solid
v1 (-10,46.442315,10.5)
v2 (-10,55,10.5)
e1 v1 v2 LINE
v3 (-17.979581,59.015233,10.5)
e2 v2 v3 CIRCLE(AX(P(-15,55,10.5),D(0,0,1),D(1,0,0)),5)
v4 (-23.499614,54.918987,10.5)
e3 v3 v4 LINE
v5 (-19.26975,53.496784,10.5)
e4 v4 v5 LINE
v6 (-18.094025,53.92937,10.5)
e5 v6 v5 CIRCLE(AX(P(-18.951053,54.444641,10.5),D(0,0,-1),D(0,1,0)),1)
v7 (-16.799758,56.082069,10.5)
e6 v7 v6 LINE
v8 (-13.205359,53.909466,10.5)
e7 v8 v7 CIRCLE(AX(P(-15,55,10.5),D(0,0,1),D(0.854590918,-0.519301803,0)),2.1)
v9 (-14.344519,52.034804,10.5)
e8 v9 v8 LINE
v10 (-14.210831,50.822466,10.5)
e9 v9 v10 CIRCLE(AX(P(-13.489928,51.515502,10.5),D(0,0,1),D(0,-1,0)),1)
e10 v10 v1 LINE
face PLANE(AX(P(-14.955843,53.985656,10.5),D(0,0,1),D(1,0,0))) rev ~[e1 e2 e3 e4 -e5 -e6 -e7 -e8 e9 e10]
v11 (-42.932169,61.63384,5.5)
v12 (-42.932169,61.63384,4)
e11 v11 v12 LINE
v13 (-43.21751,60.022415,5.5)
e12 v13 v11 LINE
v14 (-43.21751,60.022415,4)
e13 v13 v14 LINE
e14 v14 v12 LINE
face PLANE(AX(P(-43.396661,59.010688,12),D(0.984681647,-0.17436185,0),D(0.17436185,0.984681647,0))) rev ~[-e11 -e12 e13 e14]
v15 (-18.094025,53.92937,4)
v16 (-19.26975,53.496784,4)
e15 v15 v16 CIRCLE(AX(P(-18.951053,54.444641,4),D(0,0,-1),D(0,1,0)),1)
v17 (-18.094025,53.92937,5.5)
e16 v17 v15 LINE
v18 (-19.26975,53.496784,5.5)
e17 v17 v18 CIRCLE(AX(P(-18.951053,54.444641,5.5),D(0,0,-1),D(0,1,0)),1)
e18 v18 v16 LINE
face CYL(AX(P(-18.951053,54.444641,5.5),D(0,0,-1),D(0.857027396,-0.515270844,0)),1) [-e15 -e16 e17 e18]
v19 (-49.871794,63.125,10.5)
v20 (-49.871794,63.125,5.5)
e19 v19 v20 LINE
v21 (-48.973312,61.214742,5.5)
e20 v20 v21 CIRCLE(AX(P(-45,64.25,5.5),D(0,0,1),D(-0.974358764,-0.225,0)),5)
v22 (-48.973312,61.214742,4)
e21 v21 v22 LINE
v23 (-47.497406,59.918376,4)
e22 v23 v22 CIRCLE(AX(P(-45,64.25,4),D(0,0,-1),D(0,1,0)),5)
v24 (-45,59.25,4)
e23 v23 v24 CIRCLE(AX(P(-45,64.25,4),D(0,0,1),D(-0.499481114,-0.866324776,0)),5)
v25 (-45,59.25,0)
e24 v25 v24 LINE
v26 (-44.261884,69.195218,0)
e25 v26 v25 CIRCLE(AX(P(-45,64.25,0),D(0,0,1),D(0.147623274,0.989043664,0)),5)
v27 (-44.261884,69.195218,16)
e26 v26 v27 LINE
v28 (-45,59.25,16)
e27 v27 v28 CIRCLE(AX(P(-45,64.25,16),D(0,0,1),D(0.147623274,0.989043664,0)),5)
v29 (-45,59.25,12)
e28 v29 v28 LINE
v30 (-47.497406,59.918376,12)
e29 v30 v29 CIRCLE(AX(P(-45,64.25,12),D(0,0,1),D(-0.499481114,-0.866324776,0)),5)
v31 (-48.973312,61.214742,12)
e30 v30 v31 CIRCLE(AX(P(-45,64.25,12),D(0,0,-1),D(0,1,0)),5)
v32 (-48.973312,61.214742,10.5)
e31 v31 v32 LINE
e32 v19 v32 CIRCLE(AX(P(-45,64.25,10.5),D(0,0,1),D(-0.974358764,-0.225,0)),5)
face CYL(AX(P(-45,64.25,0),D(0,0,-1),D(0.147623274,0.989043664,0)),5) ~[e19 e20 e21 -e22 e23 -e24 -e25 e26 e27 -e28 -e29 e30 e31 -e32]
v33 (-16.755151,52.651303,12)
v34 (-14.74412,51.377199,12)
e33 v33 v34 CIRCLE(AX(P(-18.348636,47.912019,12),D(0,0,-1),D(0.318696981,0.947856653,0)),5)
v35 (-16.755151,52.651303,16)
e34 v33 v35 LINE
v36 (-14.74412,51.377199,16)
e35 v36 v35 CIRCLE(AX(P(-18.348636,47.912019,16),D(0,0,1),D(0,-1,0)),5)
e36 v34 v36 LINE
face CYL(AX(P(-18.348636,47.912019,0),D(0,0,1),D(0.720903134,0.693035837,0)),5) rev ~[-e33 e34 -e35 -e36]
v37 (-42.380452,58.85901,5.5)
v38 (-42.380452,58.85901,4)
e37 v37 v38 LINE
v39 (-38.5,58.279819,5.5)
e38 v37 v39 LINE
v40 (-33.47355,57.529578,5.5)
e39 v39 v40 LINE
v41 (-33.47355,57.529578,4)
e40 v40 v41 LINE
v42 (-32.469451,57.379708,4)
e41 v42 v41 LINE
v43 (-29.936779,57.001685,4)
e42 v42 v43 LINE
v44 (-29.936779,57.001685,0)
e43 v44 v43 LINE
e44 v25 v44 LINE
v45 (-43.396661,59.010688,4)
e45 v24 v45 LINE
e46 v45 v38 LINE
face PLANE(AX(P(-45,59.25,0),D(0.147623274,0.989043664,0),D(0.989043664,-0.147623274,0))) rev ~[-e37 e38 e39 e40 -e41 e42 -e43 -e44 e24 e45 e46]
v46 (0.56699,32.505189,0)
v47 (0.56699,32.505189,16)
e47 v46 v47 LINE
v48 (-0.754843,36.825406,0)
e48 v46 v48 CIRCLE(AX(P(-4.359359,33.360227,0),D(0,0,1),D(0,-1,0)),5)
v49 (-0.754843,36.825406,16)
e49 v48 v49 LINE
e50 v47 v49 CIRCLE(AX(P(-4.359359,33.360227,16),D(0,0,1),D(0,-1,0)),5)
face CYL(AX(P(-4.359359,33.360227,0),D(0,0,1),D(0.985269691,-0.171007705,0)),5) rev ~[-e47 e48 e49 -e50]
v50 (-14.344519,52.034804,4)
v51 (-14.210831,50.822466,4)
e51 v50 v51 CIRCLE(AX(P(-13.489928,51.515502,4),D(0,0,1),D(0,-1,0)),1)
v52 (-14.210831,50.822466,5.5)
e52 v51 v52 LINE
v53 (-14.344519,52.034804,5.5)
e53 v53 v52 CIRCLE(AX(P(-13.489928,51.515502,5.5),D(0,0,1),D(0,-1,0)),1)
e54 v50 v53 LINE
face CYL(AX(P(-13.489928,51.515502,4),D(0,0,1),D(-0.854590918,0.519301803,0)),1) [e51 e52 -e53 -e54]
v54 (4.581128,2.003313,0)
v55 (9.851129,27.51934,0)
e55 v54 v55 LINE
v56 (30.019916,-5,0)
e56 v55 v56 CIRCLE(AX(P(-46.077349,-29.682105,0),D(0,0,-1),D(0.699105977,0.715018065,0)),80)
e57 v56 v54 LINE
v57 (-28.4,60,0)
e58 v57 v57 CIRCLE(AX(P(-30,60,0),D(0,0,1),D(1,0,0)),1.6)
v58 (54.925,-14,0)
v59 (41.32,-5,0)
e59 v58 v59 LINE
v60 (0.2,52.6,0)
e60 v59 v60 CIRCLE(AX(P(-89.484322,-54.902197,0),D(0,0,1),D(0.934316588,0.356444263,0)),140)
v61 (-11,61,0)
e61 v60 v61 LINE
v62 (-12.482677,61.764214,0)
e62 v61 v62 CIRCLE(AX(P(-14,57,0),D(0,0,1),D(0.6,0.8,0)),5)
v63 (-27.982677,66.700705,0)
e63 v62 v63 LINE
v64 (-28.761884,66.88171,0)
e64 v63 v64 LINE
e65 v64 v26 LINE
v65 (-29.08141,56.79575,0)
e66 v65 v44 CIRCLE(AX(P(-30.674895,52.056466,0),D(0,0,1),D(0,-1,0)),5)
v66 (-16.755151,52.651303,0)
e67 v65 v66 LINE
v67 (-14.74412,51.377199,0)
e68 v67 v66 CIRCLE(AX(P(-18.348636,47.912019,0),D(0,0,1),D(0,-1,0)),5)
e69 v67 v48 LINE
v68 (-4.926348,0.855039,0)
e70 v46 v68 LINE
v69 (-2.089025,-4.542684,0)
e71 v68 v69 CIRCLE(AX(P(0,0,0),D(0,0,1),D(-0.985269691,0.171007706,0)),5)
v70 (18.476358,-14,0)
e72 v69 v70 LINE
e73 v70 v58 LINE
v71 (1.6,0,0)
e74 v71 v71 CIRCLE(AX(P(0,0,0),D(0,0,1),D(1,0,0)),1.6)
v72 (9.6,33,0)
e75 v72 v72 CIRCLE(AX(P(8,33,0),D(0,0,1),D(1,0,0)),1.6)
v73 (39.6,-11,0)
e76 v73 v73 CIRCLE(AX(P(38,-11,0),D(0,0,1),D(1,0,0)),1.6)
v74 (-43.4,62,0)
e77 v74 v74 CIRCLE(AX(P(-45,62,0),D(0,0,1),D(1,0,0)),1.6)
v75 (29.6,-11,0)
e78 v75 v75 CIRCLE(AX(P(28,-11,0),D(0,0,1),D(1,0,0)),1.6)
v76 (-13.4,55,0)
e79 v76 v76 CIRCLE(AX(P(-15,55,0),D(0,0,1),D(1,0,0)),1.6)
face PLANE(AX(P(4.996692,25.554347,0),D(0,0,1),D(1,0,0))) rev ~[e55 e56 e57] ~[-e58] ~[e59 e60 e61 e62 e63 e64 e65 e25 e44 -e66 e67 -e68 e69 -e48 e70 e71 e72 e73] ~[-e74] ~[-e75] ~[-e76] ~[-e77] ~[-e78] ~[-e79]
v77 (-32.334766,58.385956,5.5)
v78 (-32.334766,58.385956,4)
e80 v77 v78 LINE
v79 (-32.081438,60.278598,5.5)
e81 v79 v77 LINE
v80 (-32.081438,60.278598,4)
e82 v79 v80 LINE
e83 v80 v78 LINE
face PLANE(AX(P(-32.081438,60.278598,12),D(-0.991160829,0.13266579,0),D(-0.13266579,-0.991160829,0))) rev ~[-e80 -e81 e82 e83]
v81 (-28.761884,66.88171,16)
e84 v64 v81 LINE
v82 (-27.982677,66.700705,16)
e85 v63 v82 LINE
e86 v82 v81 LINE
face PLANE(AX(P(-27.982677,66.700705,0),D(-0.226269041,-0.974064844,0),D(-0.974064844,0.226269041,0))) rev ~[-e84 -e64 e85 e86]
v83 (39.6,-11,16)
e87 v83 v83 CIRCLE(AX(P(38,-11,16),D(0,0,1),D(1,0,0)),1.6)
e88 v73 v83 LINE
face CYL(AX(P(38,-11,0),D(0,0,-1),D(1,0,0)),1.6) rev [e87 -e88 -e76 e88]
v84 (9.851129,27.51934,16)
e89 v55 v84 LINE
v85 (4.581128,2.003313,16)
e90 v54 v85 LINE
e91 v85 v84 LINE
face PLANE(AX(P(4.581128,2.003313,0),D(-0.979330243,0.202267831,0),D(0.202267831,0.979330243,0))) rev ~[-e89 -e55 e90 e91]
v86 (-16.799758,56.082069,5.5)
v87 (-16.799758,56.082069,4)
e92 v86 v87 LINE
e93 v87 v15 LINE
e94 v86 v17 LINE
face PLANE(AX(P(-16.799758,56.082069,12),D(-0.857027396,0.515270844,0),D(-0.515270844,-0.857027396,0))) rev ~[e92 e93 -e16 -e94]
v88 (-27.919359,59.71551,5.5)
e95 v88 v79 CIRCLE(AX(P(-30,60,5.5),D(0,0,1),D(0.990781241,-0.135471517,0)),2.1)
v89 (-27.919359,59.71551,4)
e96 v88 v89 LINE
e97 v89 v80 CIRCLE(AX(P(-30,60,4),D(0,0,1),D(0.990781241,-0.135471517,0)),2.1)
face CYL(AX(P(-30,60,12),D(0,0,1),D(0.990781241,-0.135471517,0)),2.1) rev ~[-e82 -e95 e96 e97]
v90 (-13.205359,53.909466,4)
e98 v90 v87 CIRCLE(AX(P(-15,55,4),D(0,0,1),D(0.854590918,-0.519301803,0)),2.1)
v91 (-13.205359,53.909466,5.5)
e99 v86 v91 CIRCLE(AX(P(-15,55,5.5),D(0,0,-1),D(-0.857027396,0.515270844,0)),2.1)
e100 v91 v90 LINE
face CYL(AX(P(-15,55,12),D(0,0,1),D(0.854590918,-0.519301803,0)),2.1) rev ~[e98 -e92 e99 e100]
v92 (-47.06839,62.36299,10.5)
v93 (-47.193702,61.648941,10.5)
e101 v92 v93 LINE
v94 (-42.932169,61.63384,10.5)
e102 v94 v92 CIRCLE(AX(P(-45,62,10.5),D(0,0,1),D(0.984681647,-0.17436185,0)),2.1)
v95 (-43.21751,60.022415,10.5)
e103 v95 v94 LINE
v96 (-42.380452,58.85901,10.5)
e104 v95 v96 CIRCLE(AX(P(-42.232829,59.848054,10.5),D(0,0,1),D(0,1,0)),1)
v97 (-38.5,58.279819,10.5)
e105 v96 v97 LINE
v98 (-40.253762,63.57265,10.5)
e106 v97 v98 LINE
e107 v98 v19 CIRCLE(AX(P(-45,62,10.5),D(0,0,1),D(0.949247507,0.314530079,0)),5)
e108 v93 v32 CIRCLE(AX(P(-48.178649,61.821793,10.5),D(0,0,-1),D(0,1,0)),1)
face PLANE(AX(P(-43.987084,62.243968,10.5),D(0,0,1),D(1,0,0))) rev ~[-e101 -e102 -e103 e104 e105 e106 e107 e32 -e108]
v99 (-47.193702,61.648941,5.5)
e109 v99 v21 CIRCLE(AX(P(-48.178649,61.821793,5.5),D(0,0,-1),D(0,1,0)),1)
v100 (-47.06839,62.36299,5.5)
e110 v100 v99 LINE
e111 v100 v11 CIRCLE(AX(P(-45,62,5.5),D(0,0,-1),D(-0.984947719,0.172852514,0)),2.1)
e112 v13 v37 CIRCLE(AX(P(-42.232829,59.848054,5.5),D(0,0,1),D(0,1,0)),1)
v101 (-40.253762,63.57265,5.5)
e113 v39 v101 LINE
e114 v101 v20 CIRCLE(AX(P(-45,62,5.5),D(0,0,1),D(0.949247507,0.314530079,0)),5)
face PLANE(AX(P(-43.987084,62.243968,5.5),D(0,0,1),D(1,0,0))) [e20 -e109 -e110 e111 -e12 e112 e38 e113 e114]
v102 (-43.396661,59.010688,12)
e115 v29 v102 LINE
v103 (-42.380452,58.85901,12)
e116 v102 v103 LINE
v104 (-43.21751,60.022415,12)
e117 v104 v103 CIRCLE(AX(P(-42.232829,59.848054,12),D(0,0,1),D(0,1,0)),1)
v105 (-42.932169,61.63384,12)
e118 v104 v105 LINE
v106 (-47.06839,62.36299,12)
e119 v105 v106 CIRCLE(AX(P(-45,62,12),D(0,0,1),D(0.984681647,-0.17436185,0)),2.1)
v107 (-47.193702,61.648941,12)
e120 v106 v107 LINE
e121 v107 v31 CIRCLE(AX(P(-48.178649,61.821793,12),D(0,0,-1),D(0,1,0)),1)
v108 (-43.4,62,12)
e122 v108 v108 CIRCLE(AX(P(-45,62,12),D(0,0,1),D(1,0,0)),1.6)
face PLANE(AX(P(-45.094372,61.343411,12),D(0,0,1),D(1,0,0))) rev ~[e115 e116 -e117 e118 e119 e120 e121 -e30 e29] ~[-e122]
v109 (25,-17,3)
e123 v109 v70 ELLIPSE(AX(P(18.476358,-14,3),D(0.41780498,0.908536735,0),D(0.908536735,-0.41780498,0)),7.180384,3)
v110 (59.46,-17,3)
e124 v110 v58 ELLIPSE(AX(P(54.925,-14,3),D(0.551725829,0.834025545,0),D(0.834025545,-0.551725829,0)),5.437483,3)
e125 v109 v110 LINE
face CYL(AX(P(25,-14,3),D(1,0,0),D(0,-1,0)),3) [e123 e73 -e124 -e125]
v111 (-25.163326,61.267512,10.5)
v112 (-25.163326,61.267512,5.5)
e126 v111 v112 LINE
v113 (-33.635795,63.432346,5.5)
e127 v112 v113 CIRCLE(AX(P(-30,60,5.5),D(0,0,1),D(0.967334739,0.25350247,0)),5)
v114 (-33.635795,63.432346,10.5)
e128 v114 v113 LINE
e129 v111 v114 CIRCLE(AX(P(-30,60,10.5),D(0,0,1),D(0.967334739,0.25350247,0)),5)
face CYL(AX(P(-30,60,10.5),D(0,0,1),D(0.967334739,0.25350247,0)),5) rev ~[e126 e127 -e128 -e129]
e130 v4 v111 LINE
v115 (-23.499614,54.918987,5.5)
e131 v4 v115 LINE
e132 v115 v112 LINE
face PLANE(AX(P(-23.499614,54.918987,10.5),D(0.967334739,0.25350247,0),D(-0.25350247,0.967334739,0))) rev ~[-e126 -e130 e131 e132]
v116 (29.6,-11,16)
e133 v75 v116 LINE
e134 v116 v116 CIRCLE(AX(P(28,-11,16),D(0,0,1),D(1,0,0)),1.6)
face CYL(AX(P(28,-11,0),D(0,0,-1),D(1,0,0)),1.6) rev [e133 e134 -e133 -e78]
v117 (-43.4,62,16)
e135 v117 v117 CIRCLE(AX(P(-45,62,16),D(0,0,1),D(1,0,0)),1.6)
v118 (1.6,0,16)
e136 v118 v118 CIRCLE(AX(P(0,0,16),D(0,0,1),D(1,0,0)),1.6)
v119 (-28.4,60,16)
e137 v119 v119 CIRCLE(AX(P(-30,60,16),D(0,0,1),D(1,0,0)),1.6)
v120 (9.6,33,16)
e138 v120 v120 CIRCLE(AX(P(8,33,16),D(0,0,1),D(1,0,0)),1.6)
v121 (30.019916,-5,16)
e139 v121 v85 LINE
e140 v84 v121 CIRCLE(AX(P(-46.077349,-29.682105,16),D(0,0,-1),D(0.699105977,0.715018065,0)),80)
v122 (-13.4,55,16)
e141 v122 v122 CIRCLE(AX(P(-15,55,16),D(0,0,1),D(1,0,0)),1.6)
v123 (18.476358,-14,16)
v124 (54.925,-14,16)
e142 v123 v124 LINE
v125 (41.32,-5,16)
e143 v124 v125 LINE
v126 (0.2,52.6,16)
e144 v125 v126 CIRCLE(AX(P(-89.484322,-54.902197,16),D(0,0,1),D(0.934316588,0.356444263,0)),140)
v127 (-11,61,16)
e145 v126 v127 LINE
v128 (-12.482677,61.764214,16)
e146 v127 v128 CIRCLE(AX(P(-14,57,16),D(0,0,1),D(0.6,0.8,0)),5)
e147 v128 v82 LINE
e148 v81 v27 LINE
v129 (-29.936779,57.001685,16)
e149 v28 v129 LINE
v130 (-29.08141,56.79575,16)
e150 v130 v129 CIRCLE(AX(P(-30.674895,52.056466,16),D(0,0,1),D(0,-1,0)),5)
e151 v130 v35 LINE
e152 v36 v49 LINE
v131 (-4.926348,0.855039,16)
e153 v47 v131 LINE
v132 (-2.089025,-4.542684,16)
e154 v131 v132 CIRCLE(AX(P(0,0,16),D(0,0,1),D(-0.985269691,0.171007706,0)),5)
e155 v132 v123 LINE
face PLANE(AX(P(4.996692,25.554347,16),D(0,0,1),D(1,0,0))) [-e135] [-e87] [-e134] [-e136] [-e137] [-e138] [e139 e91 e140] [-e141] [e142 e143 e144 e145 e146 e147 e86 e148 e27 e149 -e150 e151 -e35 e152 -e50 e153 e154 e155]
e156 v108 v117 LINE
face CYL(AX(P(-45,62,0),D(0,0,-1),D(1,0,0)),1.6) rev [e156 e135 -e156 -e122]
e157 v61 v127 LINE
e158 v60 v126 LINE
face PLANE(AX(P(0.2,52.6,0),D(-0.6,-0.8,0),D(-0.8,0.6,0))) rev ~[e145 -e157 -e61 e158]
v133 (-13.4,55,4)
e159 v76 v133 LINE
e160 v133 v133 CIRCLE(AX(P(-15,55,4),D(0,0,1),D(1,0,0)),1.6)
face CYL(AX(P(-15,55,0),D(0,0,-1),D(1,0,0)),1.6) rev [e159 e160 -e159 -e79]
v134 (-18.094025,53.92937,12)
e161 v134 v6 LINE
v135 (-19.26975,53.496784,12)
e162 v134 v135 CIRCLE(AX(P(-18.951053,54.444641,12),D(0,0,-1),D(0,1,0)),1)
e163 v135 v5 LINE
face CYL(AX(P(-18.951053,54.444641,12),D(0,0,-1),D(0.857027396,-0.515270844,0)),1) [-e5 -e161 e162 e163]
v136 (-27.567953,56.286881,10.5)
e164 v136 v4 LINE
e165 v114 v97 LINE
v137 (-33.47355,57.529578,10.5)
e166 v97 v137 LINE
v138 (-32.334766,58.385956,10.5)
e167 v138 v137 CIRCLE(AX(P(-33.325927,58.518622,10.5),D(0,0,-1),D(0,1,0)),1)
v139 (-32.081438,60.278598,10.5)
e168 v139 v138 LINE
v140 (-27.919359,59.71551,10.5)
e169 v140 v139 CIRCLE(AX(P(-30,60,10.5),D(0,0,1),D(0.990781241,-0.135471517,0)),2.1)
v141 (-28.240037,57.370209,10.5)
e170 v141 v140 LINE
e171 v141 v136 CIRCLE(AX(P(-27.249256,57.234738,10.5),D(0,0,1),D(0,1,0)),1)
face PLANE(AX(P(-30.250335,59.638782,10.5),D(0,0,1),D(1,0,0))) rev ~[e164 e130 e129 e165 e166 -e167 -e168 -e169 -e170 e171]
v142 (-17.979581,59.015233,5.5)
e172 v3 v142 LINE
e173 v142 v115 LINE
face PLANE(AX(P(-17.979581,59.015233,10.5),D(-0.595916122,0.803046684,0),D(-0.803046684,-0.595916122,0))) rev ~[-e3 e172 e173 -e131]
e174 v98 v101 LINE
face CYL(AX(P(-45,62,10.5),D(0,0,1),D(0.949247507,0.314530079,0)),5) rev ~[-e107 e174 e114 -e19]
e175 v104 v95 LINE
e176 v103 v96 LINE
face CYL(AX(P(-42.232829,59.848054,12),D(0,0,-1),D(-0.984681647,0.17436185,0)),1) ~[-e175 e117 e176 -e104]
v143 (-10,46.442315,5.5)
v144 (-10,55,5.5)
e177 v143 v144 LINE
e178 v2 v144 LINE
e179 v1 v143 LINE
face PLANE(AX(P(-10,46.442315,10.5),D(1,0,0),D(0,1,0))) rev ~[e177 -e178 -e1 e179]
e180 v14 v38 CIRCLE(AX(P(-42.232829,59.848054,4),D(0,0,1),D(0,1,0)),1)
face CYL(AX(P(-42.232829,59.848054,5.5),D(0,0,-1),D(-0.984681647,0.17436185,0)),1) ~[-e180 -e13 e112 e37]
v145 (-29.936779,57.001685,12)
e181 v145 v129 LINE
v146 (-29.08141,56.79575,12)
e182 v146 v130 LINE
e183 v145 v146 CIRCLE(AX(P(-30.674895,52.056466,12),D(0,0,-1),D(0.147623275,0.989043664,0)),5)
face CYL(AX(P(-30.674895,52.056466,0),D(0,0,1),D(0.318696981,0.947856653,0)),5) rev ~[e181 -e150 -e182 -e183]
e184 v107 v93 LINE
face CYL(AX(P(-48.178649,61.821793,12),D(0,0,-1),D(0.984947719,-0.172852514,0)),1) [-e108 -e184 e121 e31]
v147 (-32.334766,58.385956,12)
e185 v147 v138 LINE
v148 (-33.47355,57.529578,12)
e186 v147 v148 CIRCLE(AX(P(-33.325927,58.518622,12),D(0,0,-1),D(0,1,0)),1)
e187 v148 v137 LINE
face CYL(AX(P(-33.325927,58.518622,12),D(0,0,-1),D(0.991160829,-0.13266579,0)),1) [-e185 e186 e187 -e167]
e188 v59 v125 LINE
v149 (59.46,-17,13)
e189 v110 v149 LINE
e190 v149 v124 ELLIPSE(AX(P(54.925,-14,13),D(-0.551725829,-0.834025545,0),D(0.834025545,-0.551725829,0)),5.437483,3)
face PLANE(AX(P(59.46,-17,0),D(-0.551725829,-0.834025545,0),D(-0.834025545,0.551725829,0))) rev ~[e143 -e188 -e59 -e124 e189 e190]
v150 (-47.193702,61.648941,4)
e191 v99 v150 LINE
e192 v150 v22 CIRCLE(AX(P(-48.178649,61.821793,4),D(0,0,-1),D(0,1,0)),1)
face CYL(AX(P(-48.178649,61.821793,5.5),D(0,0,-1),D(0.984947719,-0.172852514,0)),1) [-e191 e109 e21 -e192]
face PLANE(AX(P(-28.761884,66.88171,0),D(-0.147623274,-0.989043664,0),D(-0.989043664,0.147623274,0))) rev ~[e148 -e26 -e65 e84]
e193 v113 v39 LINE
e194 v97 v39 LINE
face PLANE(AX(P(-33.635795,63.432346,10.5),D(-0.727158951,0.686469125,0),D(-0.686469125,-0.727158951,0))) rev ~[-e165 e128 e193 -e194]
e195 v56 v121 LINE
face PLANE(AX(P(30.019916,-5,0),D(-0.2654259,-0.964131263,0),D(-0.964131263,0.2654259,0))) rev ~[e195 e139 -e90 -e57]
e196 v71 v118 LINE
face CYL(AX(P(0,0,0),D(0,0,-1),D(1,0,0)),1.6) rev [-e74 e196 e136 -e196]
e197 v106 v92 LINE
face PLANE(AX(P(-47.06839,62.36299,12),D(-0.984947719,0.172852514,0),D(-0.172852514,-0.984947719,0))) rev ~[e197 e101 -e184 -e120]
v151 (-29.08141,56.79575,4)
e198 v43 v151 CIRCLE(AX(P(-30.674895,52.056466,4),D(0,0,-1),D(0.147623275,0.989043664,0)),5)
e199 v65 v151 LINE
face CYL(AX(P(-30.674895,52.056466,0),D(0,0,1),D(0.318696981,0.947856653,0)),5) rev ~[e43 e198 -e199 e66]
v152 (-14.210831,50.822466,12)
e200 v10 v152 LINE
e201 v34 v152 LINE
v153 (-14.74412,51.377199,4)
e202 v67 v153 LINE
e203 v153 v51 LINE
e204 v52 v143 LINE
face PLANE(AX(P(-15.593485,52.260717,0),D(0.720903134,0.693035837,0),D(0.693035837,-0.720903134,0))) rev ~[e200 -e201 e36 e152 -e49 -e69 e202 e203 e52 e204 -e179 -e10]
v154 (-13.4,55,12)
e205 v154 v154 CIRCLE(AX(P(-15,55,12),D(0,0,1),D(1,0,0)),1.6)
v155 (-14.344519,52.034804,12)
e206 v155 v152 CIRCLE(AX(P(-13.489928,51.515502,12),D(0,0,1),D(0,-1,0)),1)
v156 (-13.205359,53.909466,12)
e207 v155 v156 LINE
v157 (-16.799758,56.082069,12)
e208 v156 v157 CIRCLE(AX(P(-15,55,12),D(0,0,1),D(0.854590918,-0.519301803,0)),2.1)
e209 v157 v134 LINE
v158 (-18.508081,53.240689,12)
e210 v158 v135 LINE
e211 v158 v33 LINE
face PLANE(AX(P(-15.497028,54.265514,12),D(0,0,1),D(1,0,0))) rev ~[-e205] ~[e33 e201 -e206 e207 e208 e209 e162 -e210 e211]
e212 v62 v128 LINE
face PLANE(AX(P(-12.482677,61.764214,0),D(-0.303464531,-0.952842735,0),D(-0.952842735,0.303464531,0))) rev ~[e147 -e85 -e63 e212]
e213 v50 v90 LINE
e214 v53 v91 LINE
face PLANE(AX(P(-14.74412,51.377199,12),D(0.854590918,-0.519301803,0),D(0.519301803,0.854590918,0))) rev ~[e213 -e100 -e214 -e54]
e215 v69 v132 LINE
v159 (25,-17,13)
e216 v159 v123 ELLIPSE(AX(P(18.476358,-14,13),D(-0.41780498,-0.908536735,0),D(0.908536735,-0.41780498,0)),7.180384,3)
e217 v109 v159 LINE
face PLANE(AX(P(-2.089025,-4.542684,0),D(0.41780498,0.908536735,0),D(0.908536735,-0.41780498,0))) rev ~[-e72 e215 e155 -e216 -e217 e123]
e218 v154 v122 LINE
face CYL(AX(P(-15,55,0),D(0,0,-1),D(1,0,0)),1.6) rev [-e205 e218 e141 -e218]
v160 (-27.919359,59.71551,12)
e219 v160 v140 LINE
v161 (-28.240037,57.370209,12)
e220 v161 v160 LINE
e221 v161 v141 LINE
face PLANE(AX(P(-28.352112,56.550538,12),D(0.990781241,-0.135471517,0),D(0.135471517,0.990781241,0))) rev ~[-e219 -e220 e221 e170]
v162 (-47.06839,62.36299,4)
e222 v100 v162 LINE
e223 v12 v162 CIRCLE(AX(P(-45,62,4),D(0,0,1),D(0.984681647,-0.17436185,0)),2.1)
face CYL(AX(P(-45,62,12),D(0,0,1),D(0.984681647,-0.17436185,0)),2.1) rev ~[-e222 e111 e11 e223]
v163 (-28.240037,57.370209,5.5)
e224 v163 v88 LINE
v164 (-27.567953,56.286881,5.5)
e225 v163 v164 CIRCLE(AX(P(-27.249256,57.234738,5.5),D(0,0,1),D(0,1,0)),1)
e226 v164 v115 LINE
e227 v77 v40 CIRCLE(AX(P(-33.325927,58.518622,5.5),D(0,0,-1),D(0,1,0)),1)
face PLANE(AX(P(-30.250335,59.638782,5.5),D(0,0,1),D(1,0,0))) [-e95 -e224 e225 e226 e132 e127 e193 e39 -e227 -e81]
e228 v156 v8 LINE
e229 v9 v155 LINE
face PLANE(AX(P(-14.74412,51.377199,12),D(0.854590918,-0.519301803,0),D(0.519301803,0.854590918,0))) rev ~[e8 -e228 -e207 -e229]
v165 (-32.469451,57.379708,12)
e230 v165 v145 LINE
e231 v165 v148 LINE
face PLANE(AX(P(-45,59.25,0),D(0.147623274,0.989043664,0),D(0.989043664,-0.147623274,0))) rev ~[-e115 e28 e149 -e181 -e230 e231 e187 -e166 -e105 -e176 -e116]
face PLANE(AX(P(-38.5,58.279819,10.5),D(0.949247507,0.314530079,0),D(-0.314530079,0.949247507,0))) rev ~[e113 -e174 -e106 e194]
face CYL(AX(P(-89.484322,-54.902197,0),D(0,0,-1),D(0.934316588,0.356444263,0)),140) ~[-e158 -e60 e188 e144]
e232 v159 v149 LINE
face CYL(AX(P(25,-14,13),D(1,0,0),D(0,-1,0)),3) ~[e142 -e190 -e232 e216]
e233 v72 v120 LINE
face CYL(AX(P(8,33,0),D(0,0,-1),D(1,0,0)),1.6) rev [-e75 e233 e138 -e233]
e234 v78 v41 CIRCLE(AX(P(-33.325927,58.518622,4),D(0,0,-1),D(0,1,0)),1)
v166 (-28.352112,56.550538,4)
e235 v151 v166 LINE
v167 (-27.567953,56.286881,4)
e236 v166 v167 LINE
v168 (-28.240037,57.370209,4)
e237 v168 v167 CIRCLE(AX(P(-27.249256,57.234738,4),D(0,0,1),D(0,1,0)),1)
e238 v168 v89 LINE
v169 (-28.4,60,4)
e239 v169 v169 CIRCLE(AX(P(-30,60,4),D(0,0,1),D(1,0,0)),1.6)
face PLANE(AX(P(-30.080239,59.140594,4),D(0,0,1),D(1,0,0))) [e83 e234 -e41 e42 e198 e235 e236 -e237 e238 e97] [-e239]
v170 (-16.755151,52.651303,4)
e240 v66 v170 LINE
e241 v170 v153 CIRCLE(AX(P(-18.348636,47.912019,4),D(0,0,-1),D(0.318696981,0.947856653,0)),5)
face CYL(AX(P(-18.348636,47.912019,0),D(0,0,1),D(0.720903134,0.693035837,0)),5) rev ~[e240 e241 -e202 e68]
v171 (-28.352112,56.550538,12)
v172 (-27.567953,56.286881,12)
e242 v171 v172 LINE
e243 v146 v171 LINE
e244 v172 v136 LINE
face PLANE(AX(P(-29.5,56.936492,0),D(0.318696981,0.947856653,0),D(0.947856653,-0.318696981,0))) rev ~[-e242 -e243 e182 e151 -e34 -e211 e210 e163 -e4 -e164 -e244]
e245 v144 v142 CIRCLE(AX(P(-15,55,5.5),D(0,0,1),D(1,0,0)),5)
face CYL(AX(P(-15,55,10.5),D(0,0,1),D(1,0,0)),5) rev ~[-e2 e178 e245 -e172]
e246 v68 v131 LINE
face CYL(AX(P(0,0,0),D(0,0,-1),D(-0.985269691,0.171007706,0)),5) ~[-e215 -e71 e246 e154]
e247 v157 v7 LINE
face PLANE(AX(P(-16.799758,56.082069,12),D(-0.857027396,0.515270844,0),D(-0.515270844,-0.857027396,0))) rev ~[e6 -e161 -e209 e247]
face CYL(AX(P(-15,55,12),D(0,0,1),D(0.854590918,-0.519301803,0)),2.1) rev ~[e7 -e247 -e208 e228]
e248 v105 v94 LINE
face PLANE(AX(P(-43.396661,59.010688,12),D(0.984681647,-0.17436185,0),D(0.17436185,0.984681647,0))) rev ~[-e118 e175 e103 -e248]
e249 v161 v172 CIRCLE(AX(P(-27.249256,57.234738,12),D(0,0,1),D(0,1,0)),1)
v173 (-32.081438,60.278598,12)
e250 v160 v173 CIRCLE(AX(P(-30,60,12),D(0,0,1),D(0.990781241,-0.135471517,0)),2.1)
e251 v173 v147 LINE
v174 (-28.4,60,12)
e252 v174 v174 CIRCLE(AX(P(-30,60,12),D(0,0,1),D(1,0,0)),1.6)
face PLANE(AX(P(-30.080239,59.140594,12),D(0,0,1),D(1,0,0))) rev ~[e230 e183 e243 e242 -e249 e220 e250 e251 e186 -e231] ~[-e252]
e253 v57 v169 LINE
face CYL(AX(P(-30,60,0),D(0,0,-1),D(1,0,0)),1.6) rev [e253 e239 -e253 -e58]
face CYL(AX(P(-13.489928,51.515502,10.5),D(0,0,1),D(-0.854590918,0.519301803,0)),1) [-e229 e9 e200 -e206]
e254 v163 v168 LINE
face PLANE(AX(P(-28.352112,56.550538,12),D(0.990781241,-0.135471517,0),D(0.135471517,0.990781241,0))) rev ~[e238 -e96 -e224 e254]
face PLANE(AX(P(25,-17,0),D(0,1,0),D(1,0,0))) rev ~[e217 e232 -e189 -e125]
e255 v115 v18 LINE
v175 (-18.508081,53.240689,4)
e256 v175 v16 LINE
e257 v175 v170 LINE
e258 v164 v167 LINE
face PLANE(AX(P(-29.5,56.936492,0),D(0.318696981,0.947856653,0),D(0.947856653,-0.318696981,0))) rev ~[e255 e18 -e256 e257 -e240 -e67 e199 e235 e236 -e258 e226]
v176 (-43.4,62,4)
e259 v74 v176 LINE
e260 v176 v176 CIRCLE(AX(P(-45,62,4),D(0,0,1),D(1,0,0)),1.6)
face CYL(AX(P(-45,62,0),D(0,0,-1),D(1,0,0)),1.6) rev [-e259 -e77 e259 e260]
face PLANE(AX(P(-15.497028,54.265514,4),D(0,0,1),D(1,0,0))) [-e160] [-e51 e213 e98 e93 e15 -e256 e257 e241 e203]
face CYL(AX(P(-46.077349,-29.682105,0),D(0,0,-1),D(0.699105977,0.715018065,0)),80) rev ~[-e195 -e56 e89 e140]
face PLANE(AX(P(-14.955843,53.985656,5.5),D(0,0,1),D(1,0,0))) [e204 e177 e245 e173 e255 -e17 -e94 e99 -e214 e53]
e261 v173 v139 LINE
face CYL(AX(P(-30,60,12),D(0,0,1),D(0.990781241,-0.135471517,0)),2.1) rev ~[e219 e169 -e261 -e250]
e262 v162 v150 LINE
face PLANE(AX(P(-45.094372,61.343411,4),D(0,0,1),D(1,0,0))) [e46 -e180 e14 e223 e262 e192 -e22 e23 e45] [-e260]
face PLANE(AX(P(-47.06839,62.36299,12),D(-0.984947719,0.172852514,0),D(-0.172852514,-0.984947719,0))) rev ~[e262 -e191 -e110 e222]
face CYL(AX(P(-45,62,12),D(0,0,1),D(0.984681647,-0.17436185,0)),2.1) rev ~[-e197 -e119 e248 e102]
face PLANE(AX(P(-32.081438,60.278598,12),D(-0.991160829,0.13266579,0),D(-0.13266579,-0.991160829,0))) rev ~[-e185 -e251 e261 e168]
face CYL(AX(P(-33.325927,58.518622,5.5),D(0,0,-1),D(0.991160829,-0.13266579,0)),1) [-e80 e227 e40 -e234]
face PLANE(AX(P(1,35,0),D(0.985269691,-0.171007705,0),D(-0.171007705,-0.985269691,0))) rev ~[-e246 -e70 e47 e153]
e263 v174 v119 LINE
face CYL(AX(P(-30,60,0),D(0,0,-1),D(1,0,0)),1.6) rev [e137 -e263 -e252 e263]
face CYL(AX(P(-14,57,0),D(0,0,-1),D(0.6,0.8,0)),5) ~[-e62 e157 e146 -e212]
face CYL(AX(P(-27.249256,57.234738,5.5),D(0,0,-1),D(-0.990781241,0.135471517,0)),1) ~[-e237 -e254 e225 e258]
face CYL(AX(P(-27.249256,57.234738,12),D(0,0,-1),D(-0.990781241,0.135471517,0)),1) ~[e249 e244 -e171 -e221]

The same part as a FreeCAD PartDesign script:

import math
import FreeCAD as App
import Part
import Sketcher


def edges_at(feature, points):
    """Names of the edges that pass closest to the given points."""
    edges = feature.Shape.Edges
    near = lambda p: min(range(len(edges)), key=lambda i: edges[i].distToShape(Part.Vertex(*p))[0])
    return sorted({f"Edge{near(p) + 1}" for p in points})

doc = App.newDocument("Part")
body = doc.addObject("PartDesign::Body", "Body")

# Sketch on XY plane
sketch1 = body.newObject("Sketcher::SketchObject", "Sketch")
sketch1.AttachmentSupport = (doc.getObject("XY_Plane"), [""])
sketch1.MapMode = "FlatFace"
sketch1.addGeometry(Part.LineSegment(App.Vector(59.5, -17, 0), App.Vector(41.3, -5, 0)), False)
sketch1.addGeometry(Part.ArcOfCircle(Part.Circle(App.Vector(-89.5, -54.9, 0), App.Vector(0, 0, 1), 140), math.radians(21), math.radians(50)), False)
sketch1.addGeometry(Part.LineSegment(App.Vector(0.2, 52.6, 0), App.Vector(-11, 61, 0)), False)
sketch1.addGeometry(Part.ArcOfCircle(Part.Circle(App.Vector(-14, 57, 0), App.Vector(0, 0, 1), 5), math.radians(53.13), math.radians(72.33)), False)
sketch1.addGeometry(Part.LineSegment(App.Vector(-12.5, 61.8, 0), App.Vector(-28, 66.7, 0)), False)
sketch1.addGeometry(Part.LineSegment(App.Vector(-28, 66.7, 0), App.Vector(-28.8, 66.9, 0)), False)
sketch1.addGeometry(Part.LineSegment(App.Vector(-28.8, 66.9, 0), App.Vector(-44.3, 69.2, 0)), False)
sketch1.addGeometry(Part.ArcOfCircle(Part.Circle(App.Vector(-45, 64.2, 0), App.Vector(0, 0, 1), 5), math.radians(82), math.radians(270)), False)
sketch1.addGeometry(Part.LineSegment(App.Vector(-45, 59.2, 0), App.Vector(-29.5, 56.9, 0)), False)
sketch1.addGeometry(Part.LineSegment(App.Vector(-29.5, 56.9, 0), App.Vector(-15.6, 52.3, 0)), False)
sketch1.addGeometry(Part.LineSegment(App.Vector(-15.6, 52.3, 0), App.Vector(1, 35, 0)), False)
sketch1.addGeometry(Part.LineSegment(App.Vector(1, 35, 0), App.Vector(-4.9, 0.9, 0)), False)
sketch1.addGeometry(Part.ArcOfCircle(Part.Circle(App.Vector(0, 0, 0), App.Vector(0, 0, 1), 5), math.radians(170), math.radians(245)), False)
sketch1.addGeometry(Part.LineSegment(App.Vector(-2.1, -4.5, 0), App.Vector(25, -17, 0)), False)
sketch1.addGeometry(Part.LineSegment(App.Vector(25, -17, 0), App.Vector(59.5, -17, 0)), False)
sketch1.addGeometry(Part.Circle(App.Vector(0, 0, 0), App.Vector(0, 0, 1), 1.6), False)
sketch1.addGeometry(Part.Circle(App.Vector(28, -11, 0), App.Vector(0, 0, 1), 1.6), False)
sketch1.addGeometry(Part.Circle(App.Vector(38, -11, 0), App.Vector(0, 0, 1), 1.6), False)
sketch1.addGeometry(Part.ArcOfCircle(Part.Circle(App.Vector(-46.1, -29.7, 0), App.Vector(0, 0, 1), 80), math.radians(18), math.radians(46)), False)
sketch1.addGeometry(Part.LineSegment(App.Vector(30, -5, 0), App.Vector(4.6, 2, 0)), False)
sketch1.addGeometry(Part.LineSegment(App.Vector(4.6, 2, 0), App.Vector(9.9, 27.5, 0)), False)
sketch1.addGeometry(Part.Circle(App.Vector(-45, 62, 0), App.Vector(0, 0, 1), 1.6), False)
sketch1.addGeometry(Part.Circle(App.Vector(-30, 60, 0), App.Vector(0, 0, 1), 1.6), False)
sketch1.addGeometry(Part.Circle(App.Vector(-15, 55, 0), App.Vector(0, 0, 1), 1.6), False)
sketch1.addGeometry(Part.Circle(App.Vector(8, 33, 0), App.Vector(0, 0, 1), 1.6), False)
sketch1.addConstraint(Sketcher.Constraint("Coincident", 0, 2, 1, 1))
sketch1.addConstraint(Sketcher.Constraint("Coincident", 1, 2, 2, 1))
sketch1.addConstraint(Sketcher.Constraint("Tangent", 2, 2, 3, 1))
sketch1.addConstraint(Sketcher.Constraint("Tangent", 3, 2, 4, 1))
sketch1.addConstraint(Sketcher.Constraint("Coincident", 4, 2, 5, 1))
sketch1.addConstraint(Sketcher.Constraint("Coincident", 5, 2, 6, 1))
sketch1.addConstraint(Sketcher.Constraint("Tangent", 6, 2, 7, 1))
sketch1.addConstraint(Sketcher.Constraint("Coincident", 7, 2, 8, 1))
sketch1.addConstraint(Sketcher.Constraint("Coincident", 8, 2, 9, 1))
sketch1.addConstraint(Sketcher.Constraint("Coincident", 9, 2, 10, 1))
sketch1.addConstraint(Sketcher.Constraint("Coincident", 10, 2, 11, 1))
sketch1.addConstraint(Sketcher.Constraint("Tangent", 11, 2, 12, 1))
sketch1.addConstraint(Sketcher.Constraint("Tangent", 12, 2, 13, 1))
sketch1.addConstraint(Sketcher.Constraint("Coincident", 13, 2, 14, 1))
sketch1.addConstraint(Sketcher.Constraint("Coincident", 14, 2, 0, 1))
sketch1.addConstraint(Sketcher.Constraint("Coincident", 18, 1, 19, 1))
sketch1.addConstraint(Sketcher.Constraint("Coincident", 19, 2, 20, 1))
sketch1.addConstraint(Sketcher.Constraint("Coincident", 20, 2, 18, 2))
sketch1.addConstraint(Sketcher.Constraint("Horizontal", 14))
sketch1.addConstraint(Sketcher.Constraint("Coincident", 12, 3, -1, 1))
sketch1.addConstraint(Sketcher.Constraint("Coincident", 15, 3, -1, 1))
sketch1.addConstraint(Sketcher.Constraint("Equal", 3, 7))
sketch1.addConstraint(Sketcher.Constraint("Equal", 7, 12))
sketch1.addConstraint(Sketcher.Constraint("Equal", 15, 16))
sketch1.addConstraint(Sketcher.Constraint("Equal", 16, 17))
sketch1.addConstraint(Sketcher.Constraint("Equal", 17, 21))
sketch1.addConstraint(Sketcher.Constraint("Equal", 21, 22))
sketch1.addConstraint(Sketcher.Constraint("Equal", 22, 23))
sketch1.addConstraint(Sketcher.Constraint("Equal", 23, 24))
sketch1.addConstraint(Sketcher.Constraint("Parallel", 6, 8))
sketch1.addConstraint(Sketcher.Constraint("Horizontal", 16, 3, 17, 3))
sketch1.addConstraint(Sketcher.Constraint("Horizontal", 0, 2, 18, 1))
sketch1.addConstraint(Sketcher.Constraint("Vertical", 7, 3, 21, 3))
sketch1.addConstraint(Sketcher.Constraint("Vertical", 21, 3, 7, 2))
sketch1.addConstraint(Sketcher.Constraint("Equal", 6, 8))
sketch1.addConstraint(Sketcher.Constraint("Radius", 1, 140.0))
sketch1.addConstraint(Sketcher.Constraint("Radius", 3, 5.0))
sketch1.addConstraint(Sketcher.Constraint("Radius", 18, 80.0))
sketch1.addConstraint(Sketcher.Constraint("Diameter", 15, 3.2))
sketch1.addConstraint(Sketcher.Constraint("Distance", 2, 14.0))
sketch1.addConstraint(Sketcher.Constraint("DistanceX", 3, 3, -1, 1, 14.0))
sketch1.addConstraint(Sketcher.Constraint("DistanceY", -1, 1, 3, 3, 57.0))
sketch1.addConstraint(Sketcher.Constraint("DistanceX", 7, 3, -1, 1, 45.0))
sketch1.addConstraint(Sketcher.Constraint("DistanceX", -1, 1, 16, 3, 28.0))
sketch1.addConstraint(Sketcher.Constraint("DistanceY", 16, 3, -1, 1, 11.0))
sketch1.addConstraint(Sketcher.Constraint("DistanceX", -1, 1, 17, 3, 38.0))
sketch1.addConstraint(Sketcher.Constraint("DistanceY", -1, 1, 21, 3, 62.0))
sketch1.addConstraint(Sketcher.Constraint("DistanceX", 22, 3, -1, 1, 30.0))
sketch1.addConstraint(Sketcher.Constraint("DistanceY", -1, 1, 22, 3, 60.0))
sketch1.addConstraint(Sketcher.Constraint("DistanceX", 23, 3, -1, 1, 15.0))
sketch1.addConstraint(Sketcher.Constraint("DistanceY", -1, 1, 23, 3, 55.0))
sketch1.addConstraint(Sketcher.Constraint("DistanceX", -1, 1, 24, 3, 8.0))
sketch1.addConstraint(Sketcher.Constraint("DistanceY", -1, 1, 24, 3, 33.0))
sketch1.addConstraint(Sketcher.Constraint("DistanceY", 0, 2, -1, 1, 5.0))
sketch1.addConstraint(Sketcher.Constraint("DistanceX", 2, 2, -1, 1, 11.0))
sketch1.addConstraint(Sketcher.Constraint("DistanceX", -1, 1, 10, 2, 1.0))
sketch1.addConstraint(Sketcher.Constraint("DistanceY", -1, 1, 10, 2, 35.0))
sketch1.addConstraint(Sketcher.Constraint("DistanceX", -1, 1, 13, 2, 25.0))
sketch1.addConstraint(Sketcher.Constraint("DistanceY", 13, 2, -1, 1, 17.0))
sketch1.addConstraint(Sketcher.Constraint("DistanceX", 14, 1, 14, 2, 34.46))
sketch1.addConstraint(Sketcher.Constraint("DistanceX", 8, 2, -1, 1, 29.5))
sketch1.addConstraint(Sketcher.Constraint("DistanceX", 4, 2, 3, 2, 15.5))
sketch1.addConstraint(Sketcher.Constraint("DistanceY", -1, 1, 7, 3, 64.25))
sketch1.addConstraint(Sketcher.Constraint("DistanceX", -1, 1, 0, 2, 41.32))
sketch1.addConstraint(Sketcher.Constraint("DistanceX", 19, 2, 20, 2, 5.270001))
sketch1.addConstraint(Sketcher.Constraint("Distance", 9, 14.671538))
sketch1.addConstraint(Sketcher.Constraint("Distance", 19, 26.385191))
sketch1.addConstraint(Sketcher.Constraint("Distance", 20, 26.054569))
sketch1.addConstraint(Sketcher.Constraint("DistanceX", 18, 3, -1, 1, 46.077349))
sketch1.addConstraint(Sketcher.Constraint("DistanceY", -1, 1, 5, 2, 66.88171))
sketch1.addConstraint(Sketcher.Constraint("DistanceX", -1, 1, 19, 2, 4.581128))
sketch1.addConstraint(Sketcher.Constraint("DistanceY", 3, 2, 4, 2, 4.936492))
sketch1.addConstraint(Sketcher.Constraint("Distance", 10, 23.943184))
pad1 = body.newObject("PartDesign::Pad", "Pad")
pad1.Profile = sketch1
pad1.Length = 16
doc.recompute()

fillet = body.newObject("PartDesign::Fillet", "Fillet")
fillet.Base = (pad1, edges_at(pad1, [(42.23, -17, 0), (42.23, -17, 16)]))
fillet.Radius = 3
doc.recompute()

fillet2 = body.newObject("PartDesign::Fillet", "Fillet001")
fillet2.Base = (fillet, edges_at(fillet, [(1, 35, 8), (-15.593, 52.261, 8), (-29.5, 56.936, 8)]))
fillet2.Radius = 5

# Sketch on XY plane
sketch2 = body.newObject("Sketcher::SketchObject", "Sketch001")
sketch2.AttachmentSupport = (doc.getObject("XY_Plane"), [""])
sketch2.MapMode = "FlatFace"
sketch2.AttachmentOffset = App.Placement(App.Vector(0, 0, 10.5), App.Rotation())
sketch2.addGeometry(Part.LineSegment(App.Vector(-23.5, 54.9, 0), App.Vector(-16.8, 52.7, 0)), False)
sketch2.addGeometry(Part.ArcOfCircle(Part.Circle(App.Vector(-18.3, 47.9, 0), App.Vector(0, 0, 1), 5), math.radians(44), math.radians(71)), False)
sketch2.addGeometry(Part.LineSegment(App.Vector(-14.7, 51.4, 0), App.Vector(-10, 46.4, 0)), False)
sketch2.addGeometry(Part.LineSegment(App.Vector(-10, 46.4, 0), App.Vector(-10, 55, 0)), False)
sketch2.addGeometry(Part.ArcOfCircle(Part.Circle(App.Vector(-15, 55, 0), App.Vector(0, 0, 1), 5), math.radians(0), math.radians(127)), False)
sketch2.addGeometry(Part.LineSegment(App.Vector(-18, 59, 0), App.Vector(-23.5, 54.9, 0)), False)
sketch2.addGeometry(Part.Circle(App.Vector(-15, 55, 0), App.Vector(0, 0, 1), 2.1), False)
sketch2.addGeometry(Part.LineSegment(App.Vector(-23.5, 54.9, 0), App.Vector(-25.2, 61.3, 0)), False)
sketch2.addGeometry(Part.ArcOfCircle(Part.Circle(App.Vector(-30, 60, 0), App.Vector(0, 0, 1), 5), math.radians(15), math.radians(137)), False)
sketch2.addGeometry(Part.LineSegment(App.Vector(-33.6, 63.4, 0), App.Vector(-38.5, 58.3, 0)), False)
sketch2.addGeometry(Part.LineSegment(App.Vector(-38.5, 58.3, 0), App.Vector(-29.9, 57, 0)), False)
sketch2.addGeometry(Part.ArcOfCircle(Part.Circle(App.Vector(-30.7, 52.1, 0), App.Vector(0, 0, 1), 5), math.radians(71.42), math.radians(81.51)), False)
sketch2.addGeometry(Part.LineSegment(App.Vector(-29.1, 56.8, 0), App.Vector(-23.5, 54.9, 0)), False)
sketch2.addGeometry(Part.Circle(App.Vector(-30, 60, 0), App.Vector(0, 0, 1), 1.6), False)
sketch2.addGeometry(Part.LineSegment(App.Vector(-38.5, 58.3, 0), App.Vector(-40.3, 63.6, 0)), False)
sketch2.addGeometry(Part.ArcOfCircle(Part.Circle(App.Vector(-45, 62, 0), App.Vector(0, 0, 1), 5), math.radians(18), math.radians(167)), False)
sketch2.addGeometry(Part.ArcOfCircle(Part.Circle(App.Vector(-45, 64.2, 0), App.Vector(0, 0, 1), 5), math.radians(-167), math.radians(-90)), False)
sketch2.addGeometry(Part.LineSegment(App.Vector(-45, 59.2, 0), App.Vector(-38.5, 58.3, 0)), False)
sketch2.addGeometry(Part.Circle(App.Vector(-45, 62, 0), App.Vector(0, 0, 1), 2.1), False)
sketch2.addConstraint(Sketcher.Constraint("Tangent", 0, 2, 1, 2))
sketch2.addConstraint(Sketcher.Constraint("Tangent", 1, 1, 2, 1))
sketch2.addConstraint(Sketcher.Constraint("Coincident", 2, 2, 3, 1))
sketch2.addConstraint(Sketcher.Constraint("Tangent", 3, 2, 4, 1))
sketch2.addConstraint(Sketcher.Constraint("Tangent", 4, 2, 5, 1))
sketch2.addConstraint(Sketcher.Constraint("Coincident", 5, 2, 0, 1))
sketch2.addConstraint(Sketcher.Constraint("Tangent", 7, 2, 8, 1))
sketch2.addConstraint(Sketcher.Constraint("Tangent", 8, 2, 9, 1))
sketch2.addConstraint(Sketcher.Constraint("Coincident", 9, 2, 10, 1))
sketch2.addConstraint(Sketcher.Constraint("Tangent", 10, 2, 11, 2))
sketch2.addConstraint(Sketcher.Constraint("Tangent", 11, 1, 12, 1))
sketch2.addConstraint(Sketcher.Constraint("Coincident", 12, 2, 7, 1))
sketch2.addConstraint(Sketcher.Constraint("Tangent", 14, 2, 15, 1))
sketch2.addConstraint(Sketcher.Constraint("Coincident", 15, 2, 16, 1))
sketch2.addConstraint(Sketcher.Constraint("Coincident", 16, 2, 17, 1))
sketch2.addConstraint(Sketcher.Constraint("Coincident", 17, 2, 14, 1))
sketch2.addConstraint(Sketcher.Constraint("Vertical", 3))
sketch2.addConstraint(Sketcher.Constraint("Coincident", 6, 3, 4, 3))
sketch2.addConstraint(Sketcher.Constraint("Coincident", 13, 3, 8, 3))
sketch2.addConstraint(Sketcher.Constraint("Coincident", 18, 3, 15, 3))
sketch2.addConstraint(Sketcher.Constraint("Coincident", 12, 2, 5, 2))
sketch2.addConstraint(Sketcher.Constraint("Coincident", 17, 2, 9, 2))
sketch2.addConstraint(Sketcher.Constraint("Equal", 1, 4))
sketch2.addConstraint(Sketcher.Constraint("Equal", 4, 8))
sketch2.addConstraint(Sketcher.Constraint("Equal", 8, 11))
sketch2.addConstraint(Sketcher.Constraint("Equal", 11, 15))
sketch2.addConstraint(Sketcher.Constraint("Equal", 15, 16))
sketch2.addConstraint(Sketcher.Constraint("Equal", 6, 18))
sketch2.addConstraint(Sketcher.Constraint("Parallel", 0, 12))
sketch2.addConstraint(Sketcher.Constraint("Parallel", 10, 17))
sketch2.addConstraint(Sketcher.Constraint("Vertical", 15, 3, 16, 3))
sketch2.addConstraint(Sketcher.Constraint("Vertical", 18, 3, 16, 2))
sketch2.addConstraint(Sketcher.Constraint("Radius", 1, 5.0))
sketch2.addConstraint(Sketcher.Constraint("Diameter", 6, 4.2))
sketch2.addConstraint(Sketcher.Constraint("Diameter", 13, 3.2))
sketch2.addConstraint(Sketcher.Constraint("DistanceX", 4, 3, -1, 1, 15.0))
sketch2.addConstraint(Sketcher.Constraint("DistanceY", -1, 1, 4, 3, 55.0))
sketch2.addConstraint(Sketcher.Constraint("DistanceX", 8, 3, -1, 1, 30.0))
sketch2.addConstraint(Sketcher.Constraint("DistanceY", -1, 1, 8, 3, 60.0))
sketch2.addConstraint(Sketcher.Constraint("DistanceX", 15, 3, -1, 1, 45.0))
sketch2.addConstraint(Sketcher.Constraint("DistanceY", -1, 1, 15, 3, 62.0))
sketch2.addConstraint(Sketcher.Constraint("DistanceX", 9, 2, -1, 1, 38.5))
sketch2.addConstraint(Sketcher.Constraint("DistanceY", -1, 1, 16, 3, 64.25))
sketch2.addConstraint(Sketcher.Constraint("DistanceY", -1, 1, 1, 1, 51.377199))
sketch2.addConstraint(Sketcher.Constraint("Distance", 0, 7.115488))
sketch2.addConstraint(Sketcher.Constraint("Distance", 2, 6.845418))
sketch2.addConstraint(Sketcher.Constraint("Distance", 12, 5.888861))
sketch2.addConstraint(Sketcher.Constraint("DistanceY", 3, 1, 3, 2, 8.557685))
sketch2.addConstraint(Sketcher.Constraint("DistanceX", 0, 2, -1, 1, 16.755151))
pocket1 = body.newObject("PartDesign::Pocket", "Pocket")
pocket1.Profile = sketch2
pocket1.Length = 5

# Sketch on XY plane
sketch3 = body.newObject("Sketcher::SketchObject", "Sketch002")
sketch3.AttachmentSupport = (doc.getObject("XY_Plane"), [""])
sketch3.MapMode = "FlatFace"
sketch3.AttachmentOffset = App.Placement(App.Vector(0, 0, 12), App.Rotation())
sketch3.addGeometry(Part.LineSegment(App.Vector(-16.8, 56.1, 0), App.Vector(-18.5, 53.2, 0)), False)
sketch3.addGeometry(Part.LineSegment(App.Vector(-18.5, 53.2, 0), App.Vector(-16.8, 52.7, 0)), False)
sketch3.addGeometry(Part.ArcOfCircle(Part.Circle(App.Vector(-18.3, 47.9, 0), App.Vector(0, 0, 1), 5), math.radians(44), math.radians(71)), False)
sketch3.addGeometry(Part.LineSegment(App.Vector(-14.7, 51.4, 0), App.Vector(-13.2, 53.9, 0)), False)
sketch3.addGeometry(Part.ArcOfCircle(Part.Circle(App.Vector(-15, 55, 0), App.Vector(0, 0, 1), 2.1), math.radians(-31), math.radians(149)), False)
sketch3.addGeometry(Part.Circle(App.Vector(-15, 55, 0), App.Vector(0, 0, 1), 1.6), False)
sketch3.addGeometry(Part.LineSegment(App.Vector(-29.1, 56.8, 0), App.Vector(-28.4, 56.6, 0)), False)
sketch3.addGeometry(Part.LineSegment(App.Vector(-28.4, 56.6, 0), App.Vector(-27.9, 59.7, 0)), False)
sketch3.addGeometry(Part.ArcOfCircle(Part.Circle(App.Vector(-30, 60, 0), App.Vector(0, 0, 1), 2.1), math.radians(-8), math.radians(172)), False)
sketch3.addGeometry(Part.LineSegment(App.Vector(-32.1, 60.3, 0), App.Vector(-32.5, 57.4, 0)), False)
sketch3.addGeometry(Part.LineSegment(App.Vector(-32.5, 57.4, 0), App.Vector(-29.9, 57, 0)), False)
sketch3.addGeometry(Part.ArcOfCircle(Part.Circle(App.Vector(-30.7, 52.1, 0), App.Vector(0, 0, 1), 5), math.radians(71.42), math.radians(81.51)), False)
sketch3.addGeometry(Part.Circle(App.Vector(-30, 60, 0), App.Vector(0, 0, 1), 1.6), False)
sketch3.addGeometry(Part.LineSegment(App.Vector(-45, 59.2, 0), App.Vector(-43.4, 59, 0)), False)
sketch3.addGeometry(Part.LineSegment(App.Vector(-43.4, 59, 0), App.Vector(-42.9, 61.6, 0)), False)
sketch3.addGeometry(Part.ArcOfCircle(Part.Circle(App.Vector(-45, 62, 0), App.Vector(0, 0, 1), 2.1), math.radians(-10), math.radians(170)), False)
sketch3.addGeometry(Part.LineSegment(App.Vector(-47.1, 62.4, 0), App.Vector(-47.5, 59.9, 0)), False)
sketch3.addGeometry(Part.ArcOfCircle(Part.Circle(App.Vector(-45, 64.3, 0), App.Vector(0, 0, 1), 5), math.radians(-120), math.radians(-90)), False)
sketch3.addGeometry(Part.Circle(App.Vector(-45, 62, 0), App.Vector(0, 0, 1), 1.6), False)
sketch3.addConstraint(Sketcher.Constraint("Coincident", 0, 2, 1, 1))
sketch3.addConstraint(Sketcher.Constraint("Tangent", 1, 2, 2, 2))
sketch3.addConstraint(Sketcher.Constraint("Coincident", 2, 1, 3, 1))
sketch3.addConstraint(Sketcher.Constraint("Tangent", 3, 2, 4, 1))
sketch3.addConstraint(Sketcher.Constraint("Tangent", 4, 2, 0, 1))
sketch3.addConstraint(Sketcher.Constraint("Coincident", 6, 2, 7, 1))
sketch3.addConstraint(Sketcher.Constraint("Tangent", 7, 2, 8, 1))
sketch3.addConstraint(Sketcher.Constraint("Tangent", 8, 2, 9, 1))
sketch3.addConstraint(Sketcher.Constraint("Coincident", 9, 2, 10, 1))
sketch3.addConstraint(Sketcher.Constraint("Tangent", 10, 2, 11, 2))
sketch3.addConstraint(Sketcher.Constraint("Tangent", 11, 1, 6, 1))
sketch3.addConstraint(Sketcher.Constraint("Coincident", 13, 2, 14, 1))
sketch3.addConstraint(Sketcher.Constraint("Tangent", 14, 2, 15, 1))
sketch3.addConstraint(Sketcher.Constraint("Tangent", 15, 2, 16, 1))
sketch3.addConstraint(Sketcher.Constraint("Coincident", 16, 2, 17, 1))
sketch3.addConstraint(Sketcher.Constraint("Coincident", 17, 2, 13, 1))
sketch3.addConstraint(Sketcher.Constraint("Coincident", 5, 3, 4, 3))
sketch3.addConstraint(Sketcher.Constraint("Coincident", 12, 3, 8, 3))
sketch3.addConstraint(Sketcher.Constraint("Coincident", 18, 3, 15, 3))
sketch3.addConstraint(Sketcher.Constraint("Equal", 4, 8))
sketch3.addConstraint(Sketcher.Constraint("Equal", 2, 11))
sketch3.addConstraint(Sketcher.Constraint("Equal", 5, 12))
sketch3.addConstraint(Sketcher.Constraint("Equal", 8, 15))
sketch3.addConstraint(Sketcher.Constraint("Equal", 11, 17))
sketch3.addConstraint(Sketcher.Constraint("Equal", 12, 18))
sketch3.addConstraint(Sketcher.Constraint("Parallel", 1, 6))
sketch3.addConstraint(Sketcher.Constraint("Parallel", 10, 13))
sketch3.addConstraint(Sketcher.Constraint("Vertical", 15, 3, 17, 3))
sketch3.addConstraint(Sketcher.Constraint("Vertical", 18, 3, 17, 2))
sketch3.addConstraint(Sketcher.Constraint("Radius", 2, 5.0))
sketch3.addConstraint(Sketcher.Constraint("Diameter", 5, 3.2))
sketch3.addConstraint(Sketcher.Constraint("Radius", 4, 2.1))
sketch3.addConstraint(Sketcher.Constraint("DistanceX", 4, 3, -1, 1, 15.0))
sketch3.addConstraint(Sketcher.Constraint("DistanceY", -1, 1, 4, 3, 55.0))
sketch3.addConstraint(Sketcher.Constraint("DistanceX", 8, 3, -1, 1, 30.0))
sketch3.addConstraint(Sketcher.Constraint("DistanceY", -1, 1, 8, 3, 60.0))
sketch3.addConstraint(Sketcher.Constraint("DistanceX", 15, 3, -1, 1, 45.0))
sketch3.addConstraint(Sketcher.Constraint("DistanceY", -1, 1, 15, 3, 62.0))
sketch3.addConstraint(Sketcher.Constraint("DistanceY", -1, 1, 17, 3, 64.25))
sketch3.addConstraint(Sketcher.Constraint("Distance", 13, 1.6211))
sketch3.addConstraint(Sketcher.Constraint("DistanceY", -1, 1, 2, 1, 51.377199))
sketch3.addConstraint(Sketcher.Constraint("DistanceY", -1, 1, 8, 2, 60.278598))
sketch3.addConstraint(Sketcher.Constraint("DistanceX", 4, 2, 3, 2, 3.594398))
sketch3.addConstraint(Sketcher.Constraint("Distance", 0, 3.31539))
sketch3.addConstraint(Sketcher.Constraint("Distance", 7, 3.19442))
sketch3.addConstraint(Sketcher.Constraint("Distance", 10, 2.560729))
sketch3.addConstraint(Sketcher.Constraint("Distance", 14, 2.66396))
sketch3.addConstraint(Sketcher.Constraint("DistanceY", -1, 1, 2, 3, 47.912019))
sketch3.addConstraint(Sketcher.Constraint("DistanceX", 0, 2, -1, 1, 18.508081))
sketch3.addConstraint(Sketcher.Constraint("DistanceY", -1, 1, 6, 2, 56.550538))
sketch3.addConstraint(Sketcher.Constraint("DistanceX", 15, 2, -1, 1, 47.06839))
pocket2 = body.newObject("PartDesign::Pocket", "Pocket001")
pocket2.Profile = sketch3
pocket2.Length = 8
doc.recompute()

fillet3 = body.newObject("PartDesign::Fillet", "Fillet002")
fillet3.Base = (pocket2, edges_at(pocket2, [
    (-14.744, 51.377, 4.75),
    (-14.744, 51.377, 11.25),
    (-18.508, 53.241, 11.25),
    (-18.508, 53.241, 4.75),
    (-43.397, 59.011, 11.25),
    (-47.497, 59.918, 11.25),
    (-43.397, 59.011, 4.75),
    (-47.497, 59.918, 4.75),
    (-28.352, 56.551, 11.25),
    (-32.469, 57.38, 11.25),
    (-28.352, 56.551, 4.75),
    (-32.469, 57.38, 4.75),
]))
fillet3.Radius = 1

doc.recompute()
